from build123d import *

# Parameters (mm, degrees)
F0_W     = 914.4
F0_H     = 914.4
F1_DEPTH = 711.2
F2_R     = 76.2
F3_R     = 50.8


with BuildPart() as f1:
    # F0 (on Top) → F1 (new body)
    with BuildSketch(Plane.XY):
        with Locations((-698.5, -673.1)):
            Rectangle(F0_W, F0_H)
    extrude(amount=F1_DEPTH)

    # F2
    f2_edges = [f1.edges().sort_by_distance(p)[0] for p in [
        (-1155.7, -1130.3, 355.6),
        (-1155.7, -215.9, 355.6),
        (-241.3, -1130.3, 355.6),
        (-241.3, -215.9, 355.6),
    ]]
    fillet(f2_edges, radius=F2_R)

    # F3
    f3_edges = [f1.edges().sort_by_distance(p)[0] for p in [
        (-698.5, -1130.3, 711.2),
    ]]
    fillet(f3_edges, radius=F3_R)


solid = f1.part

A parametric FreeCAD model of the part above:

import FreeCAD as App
import Part
import Sketcher
Q = App.Units.Quantity


def edges_at(feature, points):
    """Names of the edges that pass closest to the given points."""
    edges = feature.Shape.Edges
    near = lambda p: min(range(len(edges)), key=lambda i: edges[i].distToShape(Part.Vertex(*p))[0])
    return sorted({f"Edge{near(p) + 1}" for p in points})

doc = App.newDocument("Part")
body = doc.addObject("PartDesign::Body", "Body")

sketch1 = body.newObject("Sketcher::SketchObject", "Sketch")
sketch1.AttachmentSupport = (doc.getObject("XY_Plane"), [""])
sketch1.MapMode = "FlatFace"
sketch1.addGeometry([
    Part.LineSegment(App.Vector(-1155.7, -215.9, 0), App.Vector(-1155.7, -1130.3, 0)),
    Part.LineSegment(App.Vector(-1155.7, -1130.3, 0), App.Vector(-241.3, -1130.3, 0)),
    Part.LineSegment(App.Vector(-241.3, -1130.3, 0), App.Vector(-241.3, -215.9, 0)),
    Part.LineSegment(App.Vector(-241.3, -215.9, 0), App.Vector(-1155.7, -215.9, 0)),
], False)
sketch1.addConstraint([
    Sketcher.Constraint("Coincident", 0, 2, 1, 1),
    Sketcher.Constraint("Coincident", 1, 2, 2, 1),
    Sketcher.Constraint("Coincident", 2, 2, 3, 1),
    Sketcher.Constraint("Coincident", 3, 2, 0, 1),
    Sketcher.Constraint("Vertical", 0),
    Sketcher.Constraint("Horizontal", 1),
    Sketcher.Constraint("Vertical", 2),
    Sketcher.Constraint("Horizontal", 3),
    Sketcher.Constraint("Equal", 3, 0),
    Sketcher.Constraint("DistanceX", 1, 1, 1, 2, Q("36 in")),
    Sketcher.Constraint("DistanceX", 0, 2, -1, 1, Q("45.5 in")),
    Sketcher.Constraint("DistanceY", 0, 2, -1, 1, Q("44.5 in")),
])
pad1 = body.newObject("PartDesign::Pad", "Pad")
pad1.Profile = sketch1
pad1.Length = Q("28 in")
doc.recompute()

fillet = body.newObject("PartDesign::Fillet", "Fillet")
fillet.Base = (pad1, edges_at(pad1, [
    (-1155.7, -1130.3, 355.6),
    (-1155.7, -215.9, 355.6),
    (-241.3, -1130.3, 355.6),
    (-241.3, -215.9, 355.6),
]))
fillet.Radius = Q("3 in")
doc.recompute()

fillet2 = body.newObject("PartDesign::Fillet", "Fillet001")
fillet2.Base = (fillet, edges_at(fillet, [(-698.5, -1130.3, 711.2)]))
fillet2.Radius = Q("2 in")

doc.recompute()
